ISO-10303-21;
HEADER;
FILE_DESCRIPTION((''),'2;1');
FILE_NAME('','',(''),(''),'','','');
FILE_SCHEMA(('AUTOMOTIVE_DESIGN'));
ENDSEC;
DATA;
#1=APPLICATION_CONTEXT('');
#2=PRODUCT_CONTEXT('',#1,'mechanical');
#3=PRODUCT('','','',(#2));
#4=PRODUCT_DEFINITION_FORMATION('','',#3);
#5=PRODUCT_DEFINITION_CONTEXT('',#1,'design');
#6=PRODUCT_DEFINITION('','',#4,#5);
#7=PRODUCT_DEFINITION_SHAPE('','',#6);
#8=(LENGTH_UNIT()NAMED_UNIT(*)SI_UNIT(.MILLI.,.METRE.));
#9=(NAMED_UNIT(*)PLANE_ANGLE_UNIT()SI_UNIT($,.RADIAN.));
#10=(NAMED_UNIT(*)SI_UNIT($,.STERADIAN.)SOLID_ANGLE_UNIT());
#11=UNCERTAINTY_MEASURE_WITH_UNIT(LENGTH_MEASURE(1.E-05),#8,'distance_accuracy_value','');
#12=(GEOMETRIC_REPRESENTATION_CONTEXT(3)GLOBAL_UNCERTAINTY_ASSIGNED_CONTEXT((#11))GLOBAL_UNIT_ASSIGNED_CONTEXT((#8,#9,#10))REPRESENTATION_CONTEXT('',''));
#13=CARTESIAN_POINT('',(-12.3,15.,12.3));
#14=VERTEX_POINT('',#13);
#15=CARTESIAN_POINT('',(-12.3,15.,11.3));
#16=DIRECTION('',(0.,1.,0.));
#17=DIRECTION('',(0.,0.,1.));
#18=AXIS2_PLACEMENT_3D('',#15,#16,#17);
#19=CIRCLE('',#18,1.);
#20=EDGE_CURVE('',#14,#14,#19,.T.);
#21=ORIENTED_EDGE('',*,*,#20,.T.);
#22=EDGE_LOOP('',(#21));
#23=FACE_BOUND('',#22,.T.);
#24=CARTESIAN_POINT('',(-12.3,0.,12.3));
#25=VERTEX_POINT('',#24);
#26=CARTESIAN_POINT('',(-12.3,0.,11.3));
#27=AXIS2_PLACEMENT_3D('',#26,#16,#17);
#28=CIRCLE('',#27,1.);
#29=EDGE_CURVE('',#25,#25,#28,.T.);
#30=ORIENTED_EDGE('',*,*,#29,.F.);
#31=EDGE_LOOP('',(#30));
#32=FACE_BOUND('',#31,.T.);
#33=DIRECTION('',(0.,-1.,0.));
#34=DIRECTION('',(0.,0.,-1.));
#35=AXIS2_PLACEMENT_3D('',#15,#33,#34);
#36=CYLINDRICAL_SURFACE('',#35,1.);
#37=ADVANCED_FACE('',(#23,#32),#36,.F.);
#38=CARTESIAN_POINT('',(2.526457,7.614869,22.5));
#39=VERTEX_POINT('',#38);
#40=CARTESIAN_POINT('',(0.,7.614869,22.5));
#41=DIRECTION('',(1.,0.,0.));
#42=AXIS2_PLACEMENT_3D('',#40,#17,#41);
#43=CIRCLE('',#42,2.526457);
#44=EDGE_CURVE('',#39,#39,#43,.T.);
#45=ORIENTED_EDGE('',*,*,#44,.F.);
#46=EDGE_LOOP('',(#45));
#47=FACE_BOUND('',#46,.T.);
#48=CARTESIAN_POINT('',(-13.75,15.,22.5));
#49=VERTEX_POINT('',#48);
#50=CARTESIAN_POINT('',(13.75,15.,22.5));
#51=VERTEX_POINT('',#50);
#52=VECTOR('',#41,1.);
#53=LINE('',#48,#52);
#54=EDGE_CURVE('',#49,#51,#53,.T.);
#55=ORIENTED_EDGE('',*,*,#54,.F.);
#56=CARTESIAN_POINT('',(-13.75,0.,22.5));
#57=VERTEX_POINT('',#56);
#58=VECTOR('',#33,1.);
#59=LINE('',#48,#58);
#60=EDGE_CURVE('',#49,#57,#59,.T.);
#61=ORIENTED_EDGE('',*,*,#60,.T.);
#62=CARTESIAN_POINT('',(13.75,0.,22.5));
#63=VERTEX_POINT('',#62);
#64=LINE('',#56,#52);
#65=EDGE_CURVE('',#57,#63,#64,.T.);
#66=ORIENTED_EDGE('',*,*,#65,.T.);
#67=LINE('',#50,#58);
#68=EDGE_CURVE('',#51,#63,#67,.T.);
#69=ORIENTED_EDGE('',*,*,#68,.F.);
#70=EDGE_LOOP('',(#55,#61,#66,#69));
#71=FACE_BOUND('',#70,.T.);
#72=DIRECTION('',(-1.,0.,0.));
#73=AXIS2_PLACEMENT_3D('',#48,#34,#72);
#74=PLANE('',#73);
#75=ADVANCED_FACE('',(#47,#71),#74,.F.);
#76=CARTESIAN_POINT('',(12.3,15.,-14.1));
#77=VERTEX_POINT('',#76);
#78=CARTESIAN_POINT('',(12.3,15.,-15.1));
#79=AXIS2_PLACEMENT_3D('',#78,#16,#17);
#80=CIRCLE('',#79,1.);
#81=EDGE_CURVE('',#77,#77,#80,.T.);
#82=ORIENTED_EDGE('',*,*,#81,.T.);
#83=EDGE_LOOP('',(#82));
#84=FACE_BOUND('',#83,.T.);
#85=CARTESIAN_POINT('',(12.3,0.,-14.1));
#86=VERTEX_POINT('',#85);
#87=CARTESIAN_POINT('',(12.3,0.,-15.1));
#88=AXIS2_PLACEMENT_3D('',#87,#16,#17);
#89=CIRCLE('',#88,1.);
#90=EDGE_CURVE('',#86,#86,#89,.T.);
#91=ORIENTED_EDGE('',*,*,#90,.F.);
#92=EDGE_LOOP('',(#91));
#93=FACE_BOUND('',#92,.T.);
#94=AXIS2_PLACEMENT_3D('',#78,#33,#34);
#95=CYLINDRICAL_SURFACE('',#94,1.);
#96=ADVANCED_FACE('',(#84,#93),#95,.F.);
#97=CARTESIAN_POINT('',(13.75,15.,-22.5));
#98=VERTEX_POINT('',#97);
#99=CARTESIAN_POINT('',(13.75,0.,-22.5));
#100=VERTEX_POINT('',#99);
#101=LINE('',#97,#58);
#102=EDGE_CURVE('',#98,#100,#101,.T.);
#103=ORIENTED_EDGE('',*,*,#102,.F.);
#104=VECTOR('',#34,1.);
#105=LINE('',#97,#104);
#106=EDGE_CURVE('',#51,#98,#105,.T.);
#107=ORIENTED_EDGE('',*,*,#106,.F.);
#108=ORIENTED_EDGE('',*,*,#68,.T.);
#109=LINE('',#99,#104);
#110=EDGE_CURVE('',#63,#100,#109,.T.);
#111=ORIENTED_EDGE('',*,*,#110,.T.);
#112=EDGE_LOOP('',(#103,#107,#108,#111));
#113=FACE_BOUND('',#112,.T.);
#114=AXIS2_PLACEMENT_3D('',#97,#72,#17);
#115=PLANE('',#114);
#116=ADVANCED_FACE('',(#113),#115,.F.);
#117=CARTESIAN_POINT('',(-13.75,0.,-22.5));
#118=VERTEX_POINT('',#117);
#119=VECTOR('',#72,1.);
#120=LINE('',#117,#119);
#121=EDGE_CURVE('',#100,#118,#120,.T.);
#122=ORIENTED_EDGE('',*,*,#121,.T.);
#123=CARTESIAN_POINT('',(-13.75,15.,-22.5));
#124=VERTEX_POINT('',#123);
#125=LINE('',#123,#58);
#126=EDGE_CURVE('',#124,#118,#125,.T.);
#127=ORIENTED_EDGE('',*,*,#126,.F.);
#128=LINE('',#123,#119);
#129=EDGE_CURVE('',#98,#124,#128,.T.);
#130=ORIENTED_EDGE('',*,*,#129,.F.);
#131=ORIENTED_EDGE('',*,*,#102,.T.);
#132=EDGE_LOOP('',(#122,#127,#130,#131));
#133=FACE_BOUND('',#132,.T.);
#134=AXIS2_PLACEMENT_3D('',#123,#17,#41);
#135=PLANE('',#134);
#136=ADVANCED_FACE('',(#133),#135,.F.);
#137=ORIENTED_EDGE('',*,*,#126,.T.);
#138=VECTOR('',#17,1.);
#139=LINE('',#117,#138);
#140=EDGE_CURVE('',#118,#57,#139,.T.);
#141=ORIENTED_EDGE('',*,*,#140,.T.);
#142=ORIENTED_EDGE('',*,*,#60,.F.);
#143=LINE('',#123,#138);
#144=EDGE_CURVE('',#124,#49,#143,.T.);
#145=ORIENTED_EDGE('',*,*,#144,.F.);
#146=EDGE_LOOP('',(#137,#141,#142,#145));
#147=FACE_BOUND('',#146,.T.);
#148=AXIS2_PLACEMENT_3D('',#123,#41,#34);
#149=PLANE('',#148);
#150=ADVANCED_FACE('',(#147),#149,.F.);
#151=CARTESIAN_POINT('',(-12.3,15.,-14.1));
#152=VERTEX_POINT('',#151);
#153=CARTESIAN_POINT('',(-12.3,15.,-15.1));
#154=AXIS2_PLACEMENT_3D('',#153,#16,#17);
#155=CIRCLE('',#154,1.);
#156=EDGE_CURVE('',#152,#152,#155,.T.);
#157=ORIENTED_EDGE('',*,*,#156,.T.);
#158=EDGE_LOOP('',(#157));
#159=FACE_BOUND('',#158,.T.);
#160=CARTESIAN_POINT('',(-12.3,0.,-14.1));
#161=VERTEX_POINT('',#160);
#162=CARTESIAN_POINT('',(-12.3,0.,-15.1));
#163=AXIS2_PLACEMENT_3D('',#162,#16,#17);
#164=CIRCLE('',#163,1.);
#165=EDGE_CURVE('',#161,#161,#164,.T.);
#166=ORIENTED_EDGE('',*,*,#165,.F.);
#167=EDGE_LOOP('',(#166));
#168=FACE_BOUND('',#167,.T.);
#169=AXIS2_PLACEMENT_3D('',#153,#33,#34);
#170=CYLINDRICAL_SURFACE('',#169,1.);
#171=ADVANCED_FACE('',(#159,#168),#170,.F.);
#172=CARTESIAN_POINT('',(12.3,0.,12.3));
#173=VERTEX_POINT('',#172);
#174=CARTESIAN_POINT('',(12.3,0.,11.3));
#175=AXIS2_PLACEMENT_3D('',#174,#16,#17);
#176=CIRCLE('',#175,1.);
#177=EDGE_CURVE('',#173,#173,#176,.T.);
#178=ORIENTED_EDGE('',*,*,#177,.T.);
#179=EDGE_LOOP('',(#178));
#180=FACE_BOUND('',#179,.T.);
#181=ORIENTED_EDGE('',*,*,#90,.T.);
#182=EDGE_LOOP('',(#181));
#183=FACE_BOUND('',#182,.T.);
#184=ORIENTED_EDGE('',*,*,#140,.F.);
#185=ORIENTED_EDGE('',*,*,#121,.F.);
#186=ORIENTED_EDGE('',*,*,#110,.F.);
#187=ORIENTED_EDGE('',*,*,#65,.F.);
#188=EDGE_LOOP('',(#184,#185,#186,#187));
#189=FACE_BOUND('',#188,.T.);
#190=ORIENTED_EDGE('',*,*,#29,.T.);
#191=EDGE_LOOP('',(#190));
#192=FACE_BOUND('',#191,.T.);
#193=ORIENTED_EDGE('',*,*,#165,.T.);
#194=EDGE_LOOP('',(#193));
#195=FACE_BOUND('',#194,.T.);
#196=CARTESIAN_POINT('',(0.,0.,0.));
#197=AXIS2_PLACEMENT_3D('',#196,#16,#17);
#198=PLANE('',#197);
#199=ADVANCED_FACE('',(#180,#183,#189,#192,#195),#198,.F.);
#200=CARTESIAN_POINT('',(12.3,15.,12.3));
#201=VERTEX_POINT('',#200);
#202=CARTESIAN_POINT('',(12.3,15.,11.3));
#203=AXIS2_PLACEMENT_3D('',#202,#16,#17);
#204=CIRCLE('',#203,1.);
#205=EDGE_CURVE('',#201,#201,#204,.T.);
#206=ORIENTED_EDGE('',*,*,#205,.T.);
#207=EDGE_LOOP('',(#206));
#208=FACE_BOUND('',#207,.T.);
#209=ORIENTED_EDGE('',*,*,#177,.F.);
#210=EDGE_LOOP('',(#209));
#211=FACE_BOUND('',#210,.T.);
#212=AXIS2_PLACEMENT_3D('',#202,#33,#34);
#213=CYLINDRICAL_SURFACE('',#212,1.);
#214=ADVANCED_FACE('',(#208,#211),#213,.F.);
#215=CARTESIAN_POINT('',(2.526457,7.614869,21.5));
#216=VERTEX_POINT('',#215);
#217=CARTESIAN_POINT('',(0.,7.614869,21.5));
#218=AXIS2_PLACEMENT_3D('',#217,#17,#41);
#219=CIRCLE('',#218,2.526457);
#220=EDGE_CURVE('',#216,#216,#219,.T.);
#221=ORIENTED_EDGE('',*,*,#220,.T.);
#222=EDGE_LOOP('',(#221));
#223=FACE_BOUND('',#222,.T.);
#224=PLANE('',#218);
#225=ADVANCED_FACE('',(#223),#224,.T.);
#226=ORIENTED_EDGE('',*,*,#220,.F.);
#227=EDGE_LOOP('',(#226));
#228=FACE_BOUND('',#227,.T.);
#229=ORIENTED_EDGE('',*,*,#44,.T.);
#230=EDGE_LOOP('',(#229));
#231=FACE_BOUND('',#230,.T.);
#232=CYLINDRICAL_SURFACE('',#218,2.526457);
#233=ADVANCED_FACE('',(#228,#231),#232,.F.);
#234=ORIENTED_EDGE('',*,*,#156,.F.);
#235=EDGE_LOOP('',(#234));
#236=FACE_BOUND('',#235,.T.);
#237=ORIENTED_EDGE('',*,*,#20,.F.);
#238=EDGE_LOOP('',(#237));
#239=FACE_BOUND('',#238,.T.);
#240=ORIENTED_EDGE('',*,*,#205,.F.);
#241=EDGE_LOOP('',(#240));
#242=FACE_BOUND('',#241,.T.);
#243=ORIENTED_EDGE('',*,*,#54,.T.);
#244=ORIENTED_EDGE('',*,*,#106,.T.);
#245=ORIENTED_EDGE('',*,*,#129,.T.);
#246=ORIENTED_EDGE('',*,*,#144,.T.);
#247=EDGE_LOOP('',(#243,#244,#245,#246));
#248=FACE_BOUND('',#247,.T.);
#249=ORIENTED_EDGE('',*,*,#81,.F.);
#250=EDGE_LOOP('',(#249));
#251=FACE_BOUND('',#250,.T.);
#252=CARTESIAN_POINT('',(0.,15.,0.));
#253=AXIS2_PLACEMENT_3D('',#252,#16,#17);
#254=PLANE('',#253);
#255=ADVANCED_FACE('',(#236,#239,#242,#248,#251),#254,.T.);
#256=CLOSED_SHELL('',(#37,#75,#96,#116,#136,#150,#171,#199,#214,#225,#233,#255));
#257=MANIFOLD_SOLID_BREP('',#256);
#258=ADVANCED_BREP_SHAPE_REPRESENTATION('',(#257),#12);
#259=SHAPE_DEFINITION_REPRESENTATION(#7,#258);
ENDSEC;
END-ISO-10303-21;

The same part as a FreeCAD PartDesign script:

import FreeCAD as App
import Part
import Sketcher

V = App.Vector
Q = App.Units.Quantity


def add_polygon(sketch, points):
    """Adds a closed chain of lines whose ends are joined by coincident constraints."""
    first, n = sketch.GeometryCount, len(points)
    for a, b in zip(points, points[1:] + points[:1]):
        sketch.addGeometry(Part.LineSegment(App.Vector(*a, 0), App.Vector(*b, 0)), False)
    for i in range(n):
        sketch.addConstraint(Sketcher.Constraint("Coincident", first + i, 2, first + (i + 1) % n, 1))

doc = App.newDocument("Part")
params = doc.addObject("Spreadsheet::Sheet", "Params")
for row, (alias, value) in enumerate([
    ("sketch1_diameter", "2 mm"),
    ("sketch1_height", "45 mm"),
    ("sketch1_width", "27.5 mm"),
    ("pad1_length", "15 mm"),
    ("pocket1_length", "1 mm"),
], start=1):
    params.set(f"A{row}", alias)
    params.set(f"B{row}", "=" + value)
    params.setAlias(f"B{row}", alias)

body = doc.addObject("PartDesign::Body", "Body")

sketch1 = body.newObject("Sketcher::SketchObject", "Sketch")
sketch1.AttachmentSupport = (doc.getObject("XZ_Plane"), [""])
sketch1.MapMode = "FlatFace"
add_polygon(sketch1, [(-13.75, -22.5), (-13.75, 22.5), (13.75, 22.5), (13.75, -22.5)])
sketch1.addGeometry(Part.Circle(V(-12.3, 11.3, 0), V(0, 0, 1), 1), False)
sketch1.addGeometry(Part.Circle(V(12.3, 11.3, 0), V(0, 0, 1), 1), False)
sketch1.addGeometry(Part.Circle(V(-12.3, -15.1, 0), V(0, 0, 1), 1), False)
sketch1.addGeometry(Part.Circle(V(12.3, -15.1, 0), V(0, 0, 1), 1), False)
sketch1.addConstraint([
    Sketcher.Constraint("Vertical", 0),
    Sketcher.Constraint("Horizontal", 1),
    Sketcher.Constraint("Vertical", 2),
    Sketcher.Constraint("Horizontal", 3),
    Sketcher.Constraint("Equal", 4, 5),
    Sketcher.Constraint("Equal", 5, 6),
    Sketcher.Constraint("Equal", 6, 7),
    Sketcher.Constraint("Symmetric", 0, 2, 2, 2, -1, 1),
    Sketcher.Constraint("Symmetric", 4, 3, 5, 3, -2),
    Sketcher.Constraint("Symmetric", 6, 3, 7, 3, -2),
    Sketcher.Constraint("Vertical", 4, 3, 6, 3),
    Sketcher.Constraint("Diameter", 4, Q("2 mm")),
    Sketcher.Constraint("DistanceY", 0, 1, 0, 2, Q("45 mm")),
    Sketcher.Constraint("DistanceX", 1, 1, 1, 2, Q("27.5 mm")),
    Sketcher.Constraint("DistanceX", 4, 3, -1, 1, Q("12.3 mm")),
    Sketcher.Constraint("DistanceY", -1, 1, 4, 3, Q("11.3 mm")),
    Sketcher.Constraint("DistanceY", 6, 3, -1, 1, Q("15.1 mm")),
])
sketch1.setExpression("Constraints[15]", "Params.sketch1_diameter")
sketch1.setExpression("Constraints[16]", "Params.sketch1_height")
sketch1.setExpression("Constraints[17]", "Params.sketch1_width")
pad1 = body.newObject("PartDesign::Pad", "Pad")
pad1.Profile = sketch1
pad1.setExpression("Length", "Params.pad1_length")
pad1.Reversed = True

sketch2 = body.newObject("Sketcher::SketchObject", "Sketch001")
sketch2.AttachmentSupport = (doc.getObject("XY_Plane"), [""])
sketch2.MapMode = "FlatFace"
sketch2.AttachmentOffset = App.Placement(V(0, 0, 22.5), App.Rotation())
sketch2.addGeometry(Part.Circle(V(0, 7.614869, 0), V(0, 0, 1), 2.526457), False)
sketch2.addConstraint([
    Sketcher.Constraint("PointOnObject", 0, 3, -2),
    Sketcher.Constraint("Diameter", 0, Q("5.052913 mm")),
    Sketcher.Constraint("DistanceY", -1, 1, 0, 3, Q("7.614869 mm")),
])
pocket1 = body.newObject("PartDesign::Pocket", "Pocket")
pocket1.Profile = sketch2
pocket1.setExpression("Length", "Params.pocket1_length")

doc.recompute()
